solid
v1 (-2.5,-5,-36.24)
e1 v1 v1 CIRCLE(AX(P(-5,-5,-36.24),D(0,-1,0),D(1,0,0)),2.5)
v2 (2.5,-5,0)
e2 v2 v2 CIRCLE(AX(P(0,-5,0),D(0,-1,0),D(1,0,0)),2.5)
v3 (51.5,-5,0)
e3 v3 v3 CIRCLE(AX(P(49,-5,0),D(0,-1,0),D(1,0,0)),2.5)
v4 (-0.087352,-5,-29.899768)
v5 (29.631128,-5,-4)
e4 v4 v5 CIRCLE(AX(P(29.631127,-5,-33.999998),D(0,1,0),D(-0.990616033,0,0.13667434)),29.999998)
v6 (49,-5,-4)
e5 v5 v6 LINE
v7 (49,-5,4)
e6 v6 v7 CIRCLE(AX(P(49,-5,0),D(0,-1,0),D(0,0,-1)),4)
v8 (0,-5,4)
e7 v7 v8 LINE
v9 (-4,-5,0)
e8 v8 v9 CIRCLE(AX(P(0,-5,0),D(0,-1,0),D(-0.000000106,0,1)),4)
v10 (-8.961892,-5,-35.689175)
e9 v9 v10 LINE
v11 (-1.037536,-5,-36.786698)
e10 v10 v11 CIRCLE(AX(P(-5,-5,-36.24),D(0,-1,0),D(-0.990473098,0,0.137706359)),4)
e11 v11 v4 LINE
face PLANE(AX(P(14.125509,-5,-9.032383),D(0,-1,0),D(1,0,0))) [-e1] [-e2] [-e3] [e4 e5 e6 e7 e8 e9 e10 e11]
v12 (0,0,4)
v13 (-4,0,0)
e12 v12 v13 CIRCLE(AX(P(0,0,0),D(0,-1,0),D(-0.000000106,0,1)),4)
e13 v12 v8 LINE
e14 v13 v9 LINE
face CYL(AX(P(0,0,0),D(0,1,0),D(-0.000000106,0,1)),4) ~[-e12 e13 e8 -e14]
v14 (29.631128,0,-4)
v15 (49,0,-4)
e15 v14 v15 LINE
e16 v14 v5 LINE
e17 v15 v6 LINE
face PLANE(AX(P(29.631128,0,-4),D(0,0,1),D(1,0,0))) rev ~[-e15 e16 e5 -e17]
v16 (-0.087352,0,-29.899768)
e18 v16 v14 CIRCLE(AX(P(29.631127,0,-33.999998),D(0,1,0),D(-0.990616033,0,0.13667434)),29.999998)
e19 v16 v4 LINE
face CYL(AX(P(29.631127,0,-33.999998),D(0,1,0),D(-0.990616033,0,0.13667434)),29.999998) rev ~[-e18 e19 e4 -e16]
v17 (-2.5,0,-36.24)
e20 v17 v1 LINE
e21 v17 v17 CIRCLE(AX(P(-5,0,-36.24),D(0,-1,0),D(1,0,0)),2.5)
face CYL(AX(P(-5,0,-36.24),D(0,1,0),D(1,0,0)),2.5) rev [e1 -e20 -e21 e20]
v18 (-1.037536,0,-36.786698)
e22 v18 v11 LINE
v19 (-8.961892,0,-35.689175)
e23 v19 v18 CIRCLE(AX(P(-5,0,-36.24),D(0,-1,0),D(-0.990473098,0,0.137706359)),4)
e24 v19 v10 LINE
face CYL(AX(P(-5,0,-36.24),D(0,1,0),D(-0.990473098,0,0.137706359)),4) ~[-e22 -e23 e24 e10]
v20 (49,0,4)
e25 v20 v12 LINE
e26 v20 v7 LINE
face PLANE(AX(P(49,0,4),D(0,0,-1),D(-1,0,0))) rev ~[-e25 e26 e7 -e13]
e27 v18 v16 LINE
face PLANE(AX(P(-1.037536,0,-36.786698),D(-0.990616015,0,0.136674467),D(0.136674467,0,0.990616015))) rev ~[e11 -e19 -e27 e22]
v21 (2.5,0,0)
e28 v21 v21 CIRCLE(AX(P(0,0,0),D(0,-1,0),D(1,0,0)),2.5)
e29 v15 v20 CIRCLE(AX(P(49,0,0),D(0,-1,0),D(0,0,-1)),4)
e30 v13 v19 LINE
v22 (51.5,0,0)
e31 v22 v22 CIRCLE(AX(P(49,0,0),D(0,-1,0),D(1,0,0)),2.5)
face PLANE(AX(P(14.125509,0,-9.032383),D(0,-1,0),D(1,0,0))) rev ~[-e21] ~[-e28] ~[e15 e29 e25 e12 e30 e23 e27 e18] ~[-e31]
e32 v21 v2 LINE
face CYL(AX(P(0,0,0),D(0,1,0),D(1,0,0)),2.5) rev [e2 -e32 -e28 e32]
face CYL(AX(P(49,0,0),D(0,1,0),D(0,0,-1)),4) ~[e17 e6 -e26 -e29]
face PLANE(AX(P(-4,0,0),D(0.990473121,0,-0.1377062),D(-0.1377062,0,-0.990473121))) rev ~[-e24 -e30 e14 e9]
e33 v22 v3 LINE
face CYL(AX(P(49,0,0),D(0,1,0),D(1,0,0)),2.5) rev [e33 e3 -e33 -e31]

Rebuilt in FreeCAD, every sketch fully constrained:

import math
import FreeCAD as App
import Part
import Sketcher
from FreeCAD import Vector
Q = App.Units.Quantity

doc = App.newDocument("Part")
params = doc.addObject("Spreadsheet::Sheet", "Params")
for row, (alias, value) in enumerate([
    ("sketch1_diameter", "5 mm"),
    ("sketch1_radius", "4 mm"),
    ("sketch1_width", "49 mm"),
    ("pad1_length", "5 mm"),
], start=1):
    params.set(f"A{row}", alias)
    params.set(f"B{row}", "=" + value)
    params.setAlias(f"B{row}", alias)

body = doc.addObject("PartDesign::Body", "Body")

sketch1 = body.newObject("Sketcher::SketchObject", "Sketch")
sketch1.AttachmentSupport = (doc.getObject("XZ_Plane"), [""])
sketch1.MapMode = "FlatFace"
sketch1.addGeometry([
    Part.LineSegment(Vector(49, 4, 0), Vector(0, 4, 0)),
    Part.ArcOfCircle(Part.Circle(Vector(0, 0, 0), Vector(0, 0, 1), 4), math.radians(90), math.radians(180)),
    Part.LineSegment(Vector(-4, 0, 0), Vector(-9, -35.7, 0)),
    Part.ArcOfCircle(Part.Circle(Vector(-5, -36.2, 0), Vector(0, 0, 1), 4), math.radians(172), math.radians(352)),
    Part.LineSegment(Vector(-1, -36.8, 0), Vector(-0.1, -29.9, 0)),
    Part.ArcOfCircle(Part.Circle(Vector(29.6, -34, 0), Vector(0, 0, 1), 30), math.radians(90), math.radians(172)),
    Part.LineSegment(Vector(29.6, -4, 0), Vector(49, -4, 0)),
    Part.ArcOfCircle(Part.Circle(Vector(49, 0, 0), Vector(0, 0, 1), 4), math.radians(-90), math.radians(90)),
    Part.Circle(Vector(-5, -36.2, 0), Vector(0, 0, 1), 2.5),
    Part.Circle(Vector(0, 0, 0), Vector(0, 0, 1), 2.5),
    Part.Circle(Vector(49, 0, 0), Vector(0, 0, 1), 2.5),
], False)
sketch1.addConstraint([
    Sketcher.Constraint("Tangent", 0, 2, 1, 1),
    Sketcher.Constraint("Coincident", 1, 2, 2, 1),
    Sketcher.Constraint("Tangent", 2, 2, 3, 1),
    Sketcher.Constraint("Tangent", 3, 2, 4, 1),
    Sketcher.Constraint("Tangent", 4, 2, 5, 2),
    Sketcher.Constraint("Tangent", 5, 1, 6, 1),
    Sketcher.Constraint("Tangent", 6, 2, 7, 1),
    Sketcher.Constraint("Tangent", 7, 2, 0, 1),
    Sketcher.Constraint("Horizontal", 0),
    Sketcher.Constraint("Horizontal", 6),
    Sketcher.Constraint("Coincident", 1, 3, -1, 1),
    Sketcher.Constraint("Coincident", 9, 3, -1, 1),
    Sketcher.Constraint("Coincident", 8, 3, 3, 3),
    Sketcher.Constraint("Coincident", 10, 3, 7, 3),
    Sketcher.Constraint("Equal", 1, 3),
    Sketcher.Constraint("Equal", 3, 7),
    Sketcher.Constraint("Equal", 8, 9),
    Sketcher.Constraint("Equal", 9, 10),
    Sketcher.Constraint("PointOnObject", 1, 2, -1),
    Sketcher.Constraint("Diameter", 8, Q("5 mm")),
    Sketcher.Constraint("Radius", 1, Q("4 mm")),
    Sketcher.Constraint("DistanceX", 0, 2, 0, 1, Q("49 mm")),
    Sketcher.Constraint("DistanceX", 3, 3, -1, 1, Q("5 mm")),
    Sketcher.Constraint("DistanceY", 3, 3, -1, 1, Q("36.24 mm")),
    Sketcher.Constraint("Radius", 5, Q("29.999998 mm")),
    Sketcher.Constraint("DistanceX", 6, 1, 6, 2, Q("19.368872 mm")),
])
sketch1.setExpression("Constraints[19]", "Params.sketch1_diameter")
sketch1.setExpression("Constraints[20]", "Params.sketch1_radius")
sketch1.setExpression("Constraints[21]", "Params.sketch1_width")
pad1 = body.newObject("PartDesign::Pad", "Pad")
pad1.Profile = sketch1
pad1.setExpression("Length", "Params.pad1_length")

doc.recompute()
